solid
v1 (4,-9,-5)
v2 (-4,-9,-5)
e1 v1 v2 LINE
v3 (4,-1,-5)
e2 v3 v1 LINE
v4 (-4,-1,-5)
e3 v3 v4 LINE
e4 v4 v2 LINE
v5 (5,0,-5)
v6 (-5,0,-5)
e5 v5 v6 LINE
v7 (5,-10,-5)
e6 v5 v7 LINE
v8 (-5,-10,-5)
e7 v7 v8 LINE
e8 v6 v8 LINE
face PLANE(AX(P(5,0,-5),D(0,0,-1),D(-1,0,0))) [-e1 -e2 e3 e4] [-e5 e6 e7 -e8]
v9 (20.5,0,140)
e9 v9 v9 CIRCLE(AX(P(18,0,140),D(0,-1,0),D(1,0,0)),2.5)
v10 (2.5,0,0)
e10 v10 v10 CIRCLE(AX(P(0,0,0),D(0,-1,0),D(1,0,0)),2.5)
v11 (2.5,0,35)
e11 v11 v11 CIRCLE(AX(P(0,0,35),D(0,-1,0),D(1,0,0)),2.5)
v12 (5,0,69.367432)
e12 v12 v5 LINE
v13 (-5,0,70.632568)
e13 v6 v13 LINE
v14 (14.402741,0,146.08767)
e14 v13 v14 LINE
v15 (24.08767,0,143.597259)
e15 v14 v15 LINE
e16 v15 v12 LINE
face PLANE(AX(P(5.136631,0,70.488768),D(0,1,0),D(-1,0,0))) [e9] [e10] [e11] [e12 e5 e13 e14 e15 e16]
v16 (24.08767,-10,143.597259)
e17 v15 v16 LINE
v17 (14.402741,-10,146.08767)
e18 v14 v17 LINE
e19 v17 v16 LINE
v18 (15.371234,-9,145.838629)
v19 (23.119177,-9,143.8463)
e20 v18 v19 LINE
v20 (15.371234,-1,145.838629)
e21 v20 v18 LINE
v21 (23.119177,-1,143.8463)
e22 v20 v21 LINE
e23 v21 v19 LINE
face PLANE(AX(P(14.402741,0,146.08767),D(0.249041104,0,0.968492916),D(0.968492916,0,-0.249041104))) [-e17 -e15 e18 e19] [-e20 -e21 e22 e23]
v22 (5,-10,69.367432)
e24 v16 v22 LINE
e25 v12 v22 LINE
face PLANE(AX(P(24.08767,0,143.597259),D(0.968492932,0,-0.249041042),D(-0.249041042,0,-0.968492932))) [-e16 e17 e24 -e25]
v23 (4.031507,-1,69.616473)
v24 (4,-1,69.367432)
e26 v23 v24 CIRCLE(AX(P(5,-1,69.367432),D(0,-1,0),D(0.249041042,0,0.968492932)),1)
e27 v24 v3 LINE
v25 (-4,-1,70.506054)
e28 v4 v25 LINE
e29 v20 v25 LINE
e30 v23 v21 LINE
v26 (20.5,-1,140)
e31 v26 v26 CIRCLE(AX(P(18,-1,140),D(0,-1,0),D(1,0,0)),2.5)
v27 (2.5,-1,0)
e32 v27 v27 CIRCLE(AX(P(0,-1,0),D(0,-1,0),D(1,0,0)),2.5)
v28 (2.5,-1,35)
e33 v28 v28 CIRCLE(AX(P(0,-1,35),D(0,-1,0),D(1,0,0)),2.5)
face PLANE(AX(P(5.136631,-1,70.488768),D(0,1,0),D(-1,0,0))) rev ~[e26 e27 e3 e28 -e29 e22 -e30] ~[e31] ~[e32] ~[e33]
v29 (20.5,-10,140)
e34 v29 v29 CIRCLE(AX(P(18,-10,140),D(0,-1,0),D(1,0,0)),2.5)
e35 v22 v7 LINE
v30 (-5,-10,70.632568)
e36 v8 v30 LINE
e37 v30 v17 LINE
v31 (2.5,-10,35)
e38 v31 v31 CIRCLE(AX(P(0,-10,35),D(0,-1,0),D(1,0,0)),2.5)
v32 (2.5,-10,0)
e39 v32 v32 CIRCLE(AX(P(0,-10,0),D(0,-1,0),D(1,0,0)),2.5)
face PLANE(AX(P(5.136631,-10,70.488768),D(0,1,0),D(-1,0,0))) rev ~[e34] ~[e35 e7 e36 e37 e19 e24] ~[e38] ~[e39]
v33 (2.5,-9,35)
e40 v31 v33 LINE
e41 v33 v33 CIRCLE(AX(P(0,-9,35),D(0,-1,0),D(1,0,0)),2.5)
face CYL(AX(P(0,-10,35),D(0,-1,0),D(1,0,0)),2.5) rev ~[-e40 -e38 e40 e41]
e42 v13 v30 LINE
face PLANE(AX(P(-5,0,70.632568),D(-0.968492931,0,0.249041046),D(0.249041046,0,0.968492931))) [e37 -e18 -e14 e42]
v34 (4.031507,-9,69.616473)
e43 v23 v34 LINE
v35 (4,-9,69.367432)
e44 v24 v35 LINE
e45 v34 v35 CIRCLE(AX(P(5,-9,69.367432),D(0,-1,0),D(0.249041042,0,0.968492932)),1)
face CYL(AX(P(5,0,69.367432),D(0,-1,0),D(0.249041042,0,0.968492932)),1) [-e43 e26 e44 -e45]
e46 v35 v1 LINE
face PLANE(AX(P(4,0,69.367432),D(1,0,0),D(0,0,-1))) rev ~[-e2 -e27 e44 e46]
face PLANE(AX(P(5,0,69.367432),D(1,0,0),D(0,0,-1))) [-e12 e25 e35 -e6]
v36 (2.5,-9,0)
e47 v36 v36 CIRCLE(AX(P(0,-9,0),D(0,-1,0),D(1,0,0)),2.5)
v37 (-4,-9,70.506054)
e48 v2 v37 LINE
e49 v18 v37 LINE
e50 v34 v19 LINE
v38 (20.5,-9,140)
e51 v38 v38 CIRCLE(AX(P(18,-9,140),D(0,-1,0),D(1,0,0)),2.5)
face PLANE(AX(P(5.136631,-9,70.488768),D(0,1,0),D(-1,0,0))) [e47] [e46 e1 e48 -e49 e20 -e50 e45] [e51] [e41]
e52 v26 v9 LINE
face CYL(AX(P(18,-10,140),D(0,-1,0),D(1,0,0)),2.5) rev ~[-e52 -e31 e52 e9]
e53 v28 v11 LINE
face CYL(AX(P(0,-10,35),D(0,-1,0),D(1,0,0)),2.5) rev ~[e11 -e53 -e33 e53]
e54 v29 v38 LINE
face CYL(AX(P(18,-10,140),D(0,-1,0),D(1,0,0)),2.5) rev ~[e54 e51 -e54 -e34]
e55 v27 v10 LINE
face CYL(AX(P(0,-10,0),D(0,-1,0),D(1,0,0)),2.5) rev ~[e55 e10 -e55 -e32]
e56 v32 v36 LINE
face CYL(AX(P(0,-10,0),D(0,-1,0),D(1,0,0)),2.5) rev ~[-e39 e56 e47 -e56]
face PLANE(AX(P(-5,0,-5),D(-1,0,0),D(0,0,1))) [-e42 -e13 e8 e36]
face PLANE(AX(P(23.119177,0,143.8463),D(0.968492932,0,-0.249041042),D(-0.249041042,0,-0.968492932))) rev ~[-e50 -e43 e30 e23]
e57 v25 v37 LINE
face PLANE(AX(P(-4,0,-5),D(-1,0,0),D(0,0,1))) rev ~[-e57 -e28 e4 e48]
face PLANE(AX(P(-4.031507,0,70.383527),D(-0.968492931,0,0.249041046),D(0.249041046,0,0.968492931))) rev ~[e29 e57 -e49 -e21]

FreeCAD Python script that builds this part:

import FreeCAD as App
import Part
import Sketcher
from FreeCAD import Vector
Q = App.Units.Quantity


def faces_at(feature, points):
    """Names of the faces that lie closest to the given points."""
    faces = feature.Shape.Faces
    near = lambda p: min(range(len(faces)), key=lambda i: faces[i].distToShape(Part.Vertex(*p))[0])
    return sorted({f"Face{near(p) + 1}" for p in points})


def add_polygon(sketch, points):
    """Adds a closed chain of lines whose ends are joined by coincident constraints."""
    first, n = sketch.GeometryCount, len(points)
    for a, b in zip(points, points[1:] + points[:1]):
        sketch.addGeometry(Part.LineSegment(App.Vector(*a, 0), App.Vector(*b, 0)), False)
    for i in range(n):
        sketch.addConstraint(Sketcher.Constraint("Coincident", first + i, 2, first + (i + 1) % n, 1))

doc = App.newDocument("Part")
body = doc.addObject("PartDesign::Body", "Body")

# Sketch on XZ plane
sketch1 = body.newObject("Sketcher::SketchObject", "Sketch")
sketch1.AttachmentSupport = (doc.getObject("XZ_Plane"), [""])
sketch1.MapMode = "FlatFace"
add_polygon(sketch1, [(-5, 70.632568), (-5, -5), (5, -5), (5, 69.367432), (24.08767, 143.597259), (14.402741, 146.08767)])  # lines 0-5
sketch1.addConstraint(Sketcher.Constraint("Vertical", 0))
sketch1.addConstraint(Sketcher.Constraint("Horizontal", 1))
sketch1.addConstraint(Sketcher.Constraint("Vertical", 2))
sketch1.addConstraint(Sketcher.Constraint("Perpendicular", 3, 4))
sketch1.addConstraint(Sketcher.Constraint("Perpendicular", 4, 5))
sketch1.addConstraint(Sketcher.Constraint("DistanceX", 1, 1, 1, 2, Q("10 mm")))
sketch1.addConstraint(Sketcher.Constraint("Distance", 4, Q("10 mm")))
sketch1.addConstraint(Sketcher.Constraint("DistanceX", 0, 2, -1, 1, Q("5 mm")))
sketch1.addConstraint(Sketcher.Constraint("DistanceY", 0, 2, -1, 1, Q("5 mm")))
sketch1.addConstraint(Sketcher.Constraint("DistanceY", 0, 2, 0, 1, Q("75.632568 mm")))
sketch1.addConstraint(Sketcher.Constraint("DistanceY", 2, 1, 2, 2, Q("74.367432 mm")))
sketch1.addConstraint(Sketcher.Constraint("DistanceY", 5, 2, 4, 2, Q("75.455102 mm")))
pad1 = body.newObject("PartDesign::Pad", "Pad")
pad1.Profile = sketch1
pad1.Length = 10
doc.recompute()

thickness = body.newObject("PartDesign::Thickness", "Thickness")
thickness.Base = (pad1, faces_at(pad1, [(19.245, -5, 144.842), (0, -5, -5)]))
thickness.Value = 1
thickness.Reversed = True
thickness.Join = "Arc"

# Sketch on XZ plane
sketch2 = body.newObject("Sketcher::SketchObject", "Sketch001")
sketch2.AttachmentSupport = (doc.getObject("XZ_Plane"), [""])
sketch2.MapMode = "FlatFace"
sketch2.AttachmentOffset = App.Placement(Vector(0, 0, 10), App.Rotation())
sketch2.addGeometry(Part.Circle(Vector(18, 140, 0), Vector(0, 0, 1), 2.5), False)
sketch2.addGeometry(Part.Circle(Vector(0, 0, 0), Vector(0, 0, 1), 2.5), False)
sketch2.addGeometry(Part.Circle(Vector(0, 35, 0), Vector(0, 0, 1), 2.5), False)
sketch2.addConstraint(Sketcher.Constraint("Coincident", 1, 3, -1, 1))
sketch2.addConstraint(Sketcher.Constraint("Equal", 0, 1))
sketch2.addConstraint(Sketcher.Constraint("Equal", 1, 2))
sketch2.addConstraint(Sketcher.Constraint("PointOnObject", 2, 3, -2))
sketch2.addConstraint(Sketcher.Constraint("Diameter", 0, Q("5 mm")))
sketch2.addConstraint(Sketcher.Constraint("DistanceX", -1, 1, 0, 3, Q("18 mm")))
sketch2.addConstraint(Sketcher.Constraint("DistanceY", -1, 1, 0, 3, Q("140 mm")))
sketch2.addConstraint(Sketcher.Constraint("DistanceY", -1, 1, 2, 3, Q("35 mm")))
pocket1 = body.newObject("PartDesign::Pocket", "Pocket")
pocket1.Profile = sketch2
pocket1.Type = "ThroughAll"

doc.recompute()
